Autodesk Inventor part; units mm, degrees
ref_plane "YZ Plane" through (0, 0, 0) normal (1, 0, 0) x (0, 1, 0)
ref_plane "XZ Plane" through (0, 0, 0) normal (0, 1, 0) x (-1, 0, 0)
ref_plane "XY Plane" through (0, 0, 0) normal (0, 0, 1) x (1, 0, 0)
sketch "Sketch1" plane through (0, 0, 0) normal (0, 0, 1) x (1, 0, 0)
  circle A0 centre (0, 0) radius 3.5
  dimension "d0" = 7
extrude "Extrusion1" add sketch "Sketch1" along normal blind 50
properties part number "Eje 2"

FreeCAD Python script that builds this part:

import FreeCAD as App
import Part
import Sketcher

doc = App.newDocument("Part")
body = doc.addObject("PartDesign::Body", "Body")

sketch1 = body.newObject("Sketcher::SketchObject", "Sketch")
sketch1.AttachmentSupport = (doc.getObject("XY_Plane"), [""])
sketch1.MapMode = "FlatFace"
sketch1.addGeometry(Part.Circle(App.Vector(0, 0, 0), App.Vector(0, 0, 1), 3.5), False)
sketch1.addConstraint([
    Sketcher.Constraint("Coincident", 0, 3, -1, 1),
    Sketcher.Constraint("Diameter", 0, 7.0),
])
pad1 = body.newObject("PartDesign::Pad", "Pad")
pad1.Profile = sketch1
pad1.Length = 50

doc.recompute()
